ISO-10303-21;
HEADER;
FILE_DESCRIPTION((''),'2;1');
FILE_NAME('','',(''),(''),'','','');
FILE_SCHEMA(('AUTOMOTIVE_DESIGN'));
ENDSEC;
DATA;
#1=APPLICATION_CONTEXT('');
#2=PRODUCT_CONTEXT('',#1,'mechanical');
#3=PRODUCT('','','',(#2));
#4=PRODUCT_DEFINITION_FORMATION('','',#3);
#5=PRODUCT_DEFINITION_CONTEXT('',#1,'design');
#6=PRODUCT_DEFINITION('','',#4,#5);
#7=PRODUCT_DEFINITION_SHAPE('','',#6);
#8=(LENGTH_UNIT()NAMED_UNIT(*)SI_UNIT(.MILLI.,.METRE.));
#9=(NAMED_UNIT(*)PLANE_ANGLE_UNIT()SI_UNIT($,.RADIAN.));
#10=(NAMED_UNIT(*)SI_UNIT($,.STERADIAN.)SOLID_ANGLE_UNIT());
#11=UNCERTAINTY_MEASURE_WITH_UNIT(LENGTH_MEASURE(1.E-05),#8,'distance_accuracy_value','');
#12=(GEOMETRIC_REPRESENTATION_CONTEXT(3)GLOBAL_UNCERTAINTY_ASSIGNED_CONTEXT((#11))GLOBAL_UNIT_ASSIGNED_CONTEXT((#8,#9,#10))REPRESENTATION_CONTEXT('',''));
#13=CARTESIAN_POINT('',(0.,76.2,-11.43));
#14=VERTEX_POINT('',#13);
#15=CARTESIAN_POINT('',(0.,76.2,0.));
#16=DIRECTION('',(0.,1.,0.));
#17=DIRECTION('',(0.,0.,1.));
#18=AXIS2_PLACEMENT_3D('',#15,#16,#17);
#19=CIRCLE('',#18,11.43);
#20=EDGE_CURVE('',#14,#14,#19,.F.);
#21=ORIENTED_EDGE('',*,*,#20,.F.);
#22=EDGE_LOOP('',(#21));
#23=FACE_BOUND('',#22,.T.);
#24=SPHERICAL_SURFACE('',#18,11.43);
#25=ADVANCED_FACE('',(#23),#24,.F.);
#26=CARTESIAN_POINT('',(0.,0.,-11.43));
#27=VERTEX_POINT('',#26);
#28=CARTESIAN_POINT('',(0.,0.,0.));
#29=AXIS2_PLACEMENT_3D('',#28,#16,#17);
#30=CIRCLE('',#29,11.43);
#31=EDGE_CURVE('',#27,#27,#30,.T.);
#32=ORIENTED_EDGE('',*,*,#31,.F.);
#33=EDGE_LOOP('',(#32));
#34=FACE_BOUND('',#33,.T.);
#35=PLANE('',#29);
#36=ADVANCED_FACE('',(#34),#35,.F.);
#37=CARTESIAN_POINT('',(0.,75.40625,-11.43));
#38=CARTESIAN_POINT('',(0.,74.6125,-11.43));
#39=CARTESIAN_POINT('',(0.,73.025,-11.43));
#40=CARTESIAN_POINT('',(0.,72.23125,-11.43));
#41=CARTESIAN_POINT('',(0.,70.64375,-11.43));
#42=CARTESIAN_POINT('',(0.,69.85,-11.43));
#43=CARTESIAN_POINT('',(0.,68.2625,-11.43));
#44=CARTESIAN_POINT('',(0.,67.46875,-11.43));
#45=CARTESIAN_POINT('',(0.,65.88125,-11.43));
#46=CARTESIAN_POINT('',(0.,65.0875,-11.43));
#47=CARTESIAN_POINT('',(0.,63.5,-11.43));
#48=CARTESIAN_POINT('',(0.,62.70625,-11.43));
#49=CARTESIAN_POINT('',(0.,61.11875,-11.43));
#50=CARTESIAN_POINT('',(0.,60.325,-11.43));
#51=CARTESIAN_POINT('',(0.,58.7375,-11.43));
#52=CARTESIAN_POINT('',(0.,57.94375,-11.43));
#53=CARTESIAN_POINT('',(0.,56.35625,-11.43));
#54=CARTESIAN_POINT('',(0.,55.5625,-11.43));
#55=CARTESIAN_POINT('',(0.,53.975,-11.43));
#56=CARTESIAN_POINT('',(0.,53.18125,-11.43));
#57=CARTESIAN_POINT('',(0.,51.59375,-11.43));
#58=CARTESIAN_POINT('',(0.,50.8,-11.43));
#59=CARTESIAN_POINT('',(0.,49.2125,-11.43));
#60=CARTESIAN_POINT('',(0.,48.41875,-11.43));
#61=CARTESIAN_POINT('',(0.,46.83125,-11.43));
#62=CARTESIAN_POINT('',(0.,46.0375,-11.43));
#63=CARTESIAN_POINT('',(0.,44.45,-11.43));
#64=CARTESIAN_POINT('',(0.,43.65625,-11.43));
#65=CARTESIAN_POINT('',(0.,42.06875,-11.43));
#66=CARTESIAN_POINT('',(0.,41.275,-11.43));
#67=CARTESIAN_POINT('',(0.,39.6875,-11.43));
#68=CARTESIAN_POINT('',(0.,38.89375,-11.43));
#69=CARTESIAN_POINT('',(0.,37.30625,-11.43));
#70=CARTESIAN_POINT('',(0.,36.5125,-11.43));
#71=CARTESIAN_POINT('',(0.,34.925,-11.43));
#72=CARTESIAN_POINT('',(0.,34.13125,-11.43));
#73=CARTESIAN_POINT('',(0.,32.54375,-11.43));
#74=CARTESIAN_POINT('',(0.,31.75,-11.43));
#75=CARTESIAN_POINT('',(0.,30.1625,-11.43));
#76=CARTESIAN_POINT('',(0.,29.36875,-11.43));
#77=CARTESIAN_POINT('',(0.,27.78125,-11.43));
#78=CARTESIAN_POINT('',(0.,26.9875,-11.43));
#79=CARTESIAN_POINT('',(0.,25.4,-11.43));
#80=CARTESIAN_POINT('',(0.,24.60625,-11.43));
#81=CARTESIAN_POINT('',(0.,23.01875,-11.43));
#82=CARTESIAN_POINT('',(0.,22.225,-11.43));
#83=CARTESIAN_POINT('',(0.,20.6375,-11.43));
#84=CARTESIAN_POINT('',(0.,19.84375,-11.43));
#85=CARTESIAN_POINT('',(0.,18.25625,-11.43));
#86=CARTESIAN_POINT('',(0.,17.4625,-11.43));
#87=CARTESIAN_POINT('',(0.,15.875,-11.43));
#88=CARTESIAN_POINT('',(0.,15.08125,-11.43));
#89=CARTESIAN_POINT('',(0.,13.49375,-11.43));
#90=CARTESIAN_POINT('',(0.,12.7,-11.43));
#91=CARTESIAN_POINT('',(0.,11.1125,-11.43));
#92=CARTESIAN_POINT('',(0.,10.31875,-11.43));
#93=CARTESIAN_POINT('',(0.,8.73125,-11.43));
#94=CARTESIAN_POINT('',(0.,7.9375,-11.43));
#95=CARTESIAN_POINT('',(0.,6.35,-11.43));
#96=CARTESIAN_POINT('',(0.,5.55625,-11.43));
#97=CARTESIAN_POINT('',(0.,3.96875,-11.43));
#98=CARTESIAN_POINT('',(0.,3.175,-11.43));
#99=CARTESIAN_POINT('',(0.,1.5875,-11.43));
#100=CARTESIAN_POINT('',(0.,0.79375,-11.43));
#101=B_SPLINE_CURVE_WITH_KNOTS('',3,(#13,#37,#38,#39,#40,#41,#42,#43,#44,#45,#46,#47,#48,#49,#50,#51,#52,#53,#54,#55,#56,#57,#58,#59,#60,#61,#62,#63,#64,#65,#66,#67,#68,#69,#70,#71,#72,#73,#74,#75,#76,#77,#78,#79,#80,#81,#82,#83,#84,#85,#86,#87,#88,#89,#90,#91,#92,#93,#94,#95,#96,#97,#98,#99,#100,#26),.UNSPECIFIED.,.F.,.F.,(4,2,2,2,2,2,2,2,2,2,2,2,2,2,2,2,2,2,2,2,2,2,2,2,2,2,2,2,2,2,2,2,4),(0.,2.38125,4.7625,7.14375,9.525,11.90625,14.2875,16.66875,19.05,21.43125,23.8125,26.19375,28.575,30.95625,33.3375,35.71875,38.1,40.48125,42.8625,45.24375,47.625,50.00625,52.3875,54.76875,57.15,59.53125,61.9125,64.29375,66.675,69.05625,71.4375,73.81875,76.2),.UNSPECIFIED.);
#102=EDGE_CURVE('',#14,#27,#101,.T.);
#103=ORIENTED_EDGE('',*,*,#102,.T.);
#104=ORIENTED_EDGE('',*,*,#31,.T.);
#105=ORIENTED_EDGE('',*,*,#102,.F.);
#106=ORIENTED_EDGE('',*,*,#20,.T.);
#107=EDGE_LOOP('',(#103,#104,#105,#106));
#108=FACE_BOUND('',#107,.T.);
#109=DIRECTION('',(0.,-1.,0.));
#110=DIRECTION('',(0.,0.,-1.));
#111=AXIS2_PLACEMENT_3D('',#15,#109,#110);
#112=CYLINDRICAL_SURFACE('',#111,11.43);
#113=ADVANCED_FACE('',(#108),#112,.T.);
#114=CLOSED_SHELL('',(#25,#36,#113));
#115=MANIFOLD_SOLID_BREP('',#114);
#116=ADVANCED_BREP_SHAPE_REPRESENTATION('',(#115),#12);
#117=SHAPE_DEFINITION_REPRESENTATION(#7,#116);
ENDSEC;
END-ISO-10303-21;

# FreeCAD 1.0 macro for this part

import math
import FreeCAD as App
import Part
import Sketcher

V = App.Vector
Q = App.Units.Quantity

doc = App.newDocument("Part")
params = doc.addObject("Spreadsheet::Sheet", "Params")
for row, (alias, value) in enumerate([
    ("sketch1_diameter", "0.9 in"),
    ("pad1_length", "3 in"),
    ("sketch2_radius", "0.45 in"),
    ("groove_angle", "360 deg"),
], start=1):
    params.set(f"A{row}", alias)
    params.set(f"B{row}", "=" + value)
    params.setAlias(f"B{row}", alias)

body = doc.addObject("PartDesign::Body", "Body")

sketch1 = doc.addObject("Sketcher::SketchObject", "Sketch")
body.addObject(sketch1)
sketch1.AttachmentSupport = (doc.XZ_Plane, [""])
sketch1.MapMode = "FlatFace"
sketch1.addGeometry(Part.Circle(V(0, 0, 0), V(0, 0, 1), 11.43), False)
sketch1.addConstraint([
    Sketcher.Constraint("Coincident", 0, 3, -1, 1),
    Sketcher.Constraint("Diameter", 0, Q("0.9 in")),
])
sketch1.setExpression("Constraints[1]", "Params.sketch1_diameter")
pad1 = doc.addObject("PartDesign::Pad", "Pad")
body.addObject(pad1)
pad1.Profile = sketch1
pad1.setExpression("Length", "Params.pad1_length")
pad1.Reversed = True

sketch2 = doc.addObject("Sketcher::SketchObject", "Sketch001")
body.addObject(sketch2)
sketch2.AttachmentSupport = (doc.XZ_Plane, [""])
sketch2.MapMode = "FlatFace"
sketch2.AttachmentOffset = App.Placement(V(0, 0, -3 * 25.4), App.Rotation())
sketch2.addGeometry([
    Part.LineSegment(V(0, -11.43, 0), V(0, 11.43, 0)),
    Part.ArcOfCircle(Part.Circle(V(0, 0, 0), V(0, 0, 1), 11.43), math.radians(-90), math.radians(90)),
], False)
sketch2.addConstraint([
    Sketcher.Constraint("Coincident", 0, 1, 1, 1),
    Sketcher.Constraint("Coincident", 1, 2, 0, 2),
    Sketcher.Constraint("Vertical", 0),
    Sketcher.Constraint("Coincident", 1, 3, -1, 1),
    Sketcher.Constraint("PointOnObject", 0, 1, -2),
    Sketcher.Constraint("Radius", 1, Q("0.45 in")),
])
sketch2.setExpression("Constraints[5]", "Params.sketch2_radius")
groove = doc.addObject("PartDesign::Groove", "Groove")
body.addObject(groove)
groove.Profile = sketch2
groove.ReferenceAxis = (sketch2, ["V_Axis"])
groove.setExpression("Angle", "Params.groove_angle")

doc.recompute()
